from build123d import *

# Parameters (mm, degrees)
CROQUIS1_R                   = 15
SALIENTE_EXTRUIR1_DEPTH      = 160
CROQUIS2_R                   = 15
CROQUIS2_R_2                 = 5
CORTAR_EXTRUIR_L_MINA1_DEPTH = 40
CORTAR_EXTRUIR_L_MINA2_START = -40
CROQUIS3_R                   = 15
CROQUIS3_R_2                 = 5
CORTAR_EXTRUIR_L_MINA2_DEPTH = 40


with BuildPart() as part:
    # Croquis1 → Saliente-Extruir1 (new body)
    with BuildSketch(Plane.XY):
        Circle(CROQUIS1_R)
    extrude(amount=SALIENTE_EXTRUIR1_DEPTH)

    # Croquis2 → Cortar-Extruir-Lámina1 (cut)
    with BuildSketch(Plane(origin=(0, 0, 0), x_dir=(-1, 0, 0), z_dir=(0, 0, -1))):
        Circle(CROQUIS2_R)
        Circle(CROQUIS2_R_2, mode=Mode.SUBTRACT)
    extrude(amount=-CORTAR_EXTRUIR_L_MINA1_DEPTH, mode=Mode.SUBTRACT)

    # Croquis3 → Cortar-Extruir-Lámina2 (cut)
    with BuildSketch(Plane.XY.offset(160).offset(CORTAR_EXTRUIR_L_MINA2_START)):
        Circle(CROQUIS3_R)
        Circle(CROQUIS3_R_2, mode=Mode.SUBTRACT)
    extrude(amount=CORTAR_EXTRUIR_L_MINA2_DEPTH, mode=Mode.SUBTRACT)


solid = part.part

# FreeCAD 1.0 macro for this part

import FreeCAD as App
import Part
import Sketcher
from FreeCAD import Vector
Q = App.Units.Quantity

doc = App.newDocument("Part")
params = doc.addObject("Spreadsheet::Sheet", "Params")
for row, (alias, value) in enumerate([
    ("sketch1_diameter", "30 mm"),
    ("pad1_length", "160 mm"),
    ("sketch2_diameter", "30 mm"),
    ("sketch2_diameter2", "10 mm"),
    ("pocket1_length", "40 mm"),
    ("sketch3_diameter", "30 mm"),
    ("sketch3_diameter2", "10 mm"),
    ("pocket2_length", "40 mm"),
], start=1):
    params.set(f"A{row}", alias)
    params.set(f"B{row}", "=" + value)
    params.setAlias(f"B{row}", alias)

body = doc.addObject("PartDesign::Body", "Body")

sketch1 = doc.addObject("Sketcher::SketchObject", "Sketch")
body.addObject(sketch1)
sketch1.AttachmentSupport = (doc.XY_Plane, [""])
sketch1.MapMode = "FlatFace"
sketch1.addGeometry(Part.Circle(Vector(0, 0, 0), Vector(0, 0, 1), 15), False)
sketch1.addConstraint(Sketcher.Constraint("Coincident", 0, 3, -1, 1))
sketch1.addConstraint(Sketcher.Constraint("Diameter", 0, Q("30 mm")))
sketch1.setExpression("Constraints[1]", "Params.sketch1_diameter")
pad1 = doc.addObject("PartDesign::Pad", "Pad")
body.addObject(pad1)
pad1.Profile = sketch1
pad1.setExpression("Length", "Params.pad1_length")

sketch2 = doc.addObject("Sketcher::SketchObject", "Sketch001")
body.addObject(sketch2)
sketch2.AttachmentSupport = (doc.XY_Plane, [""])
sketch2.MapMode = "FlatFace"
sketch2.addGeometry(Part.Circle(Vector(0, 0, 0), Vector(0, 0, 1), 15), False)
sketch2.addGeometry(Part.Circle(Vector(0, 0, 0), Vector(0, 0, 1), 5), False)
sketch2.addConstraint(Sketcher.Constraint("Coincident", 0, 3, -1, 1))
sketch2.addConstraint(Sketcher.Constraint("Coincident", 1, 3, -1, 1))
sketch2.addConstraint(Sketcher.Constraint("Diameter", 0, Q("30 mm")))
sketch2.addConstraint(Sketcher.Constraint("Diameter", 1, Q("10 mm")))
sketch2.setExpression("Constraints[2]", "Params.sketch2_diameter")
sketch2.setExpression("Constraints[3]", "Params.sketch2_diameter2")
pocket1 = doc.addObject("PartDesign::Pocket", "Pocket")
body.addObject(pocket1)
pocket1.Profile = sketch2
pocket1.setExpression("Length", "Params.pocket1_length")
pocket1.Reversed = True

sketch3 = doc.addObject("Sketcher::SketchObject", "Sketch002")
body.addObject(sketch3)
sketch3.AttachmentSupport = (doc.XY_Plane, [""])
sketch3.MapMode = "FlatFace"
sketch3.AttachmentOffset = App.Placement(Vector(0, 0, 120), App.Rotation())
sketch3.addGeometry(Part.Circle(Vector(0, 0, 0), Vector(0, 0, 1), 15), False)
sketch3.addGeometry(Part.Circle(Vector(0, 0, 0), Vector(0, 0, 1), 5), False)
sketch3.addConstraint(Sketcher.Constraint("Coincident", 0, 3, -1, 1))
sketch3.addConstraint(Sketcher.Constraint("Coincident", 1, 3, -1, 1))
sketch3.addConstraint(Sketcher.Constraint("Diameter", 0, Q("30 mm")))
sketch3.addConstraint(Sketcher.Constraint("Diameter", 1, Q("10 mm")))
sketch3.setExpression("Constraints[2]", "Params.sketch3_diameter")
sketch3.setExpression("Constraints[3]", "Params.sketch3_diameter2")
pocket2 = doc.addObject("PartDesign::Pocket", "Pocket001")
body.addObject(pocket2)
pocket2.Profile = sketch3
pocket2.setExpression("Length", "Params.pocket2_length")
pocket2.Reversed = True

doc.recompute()
